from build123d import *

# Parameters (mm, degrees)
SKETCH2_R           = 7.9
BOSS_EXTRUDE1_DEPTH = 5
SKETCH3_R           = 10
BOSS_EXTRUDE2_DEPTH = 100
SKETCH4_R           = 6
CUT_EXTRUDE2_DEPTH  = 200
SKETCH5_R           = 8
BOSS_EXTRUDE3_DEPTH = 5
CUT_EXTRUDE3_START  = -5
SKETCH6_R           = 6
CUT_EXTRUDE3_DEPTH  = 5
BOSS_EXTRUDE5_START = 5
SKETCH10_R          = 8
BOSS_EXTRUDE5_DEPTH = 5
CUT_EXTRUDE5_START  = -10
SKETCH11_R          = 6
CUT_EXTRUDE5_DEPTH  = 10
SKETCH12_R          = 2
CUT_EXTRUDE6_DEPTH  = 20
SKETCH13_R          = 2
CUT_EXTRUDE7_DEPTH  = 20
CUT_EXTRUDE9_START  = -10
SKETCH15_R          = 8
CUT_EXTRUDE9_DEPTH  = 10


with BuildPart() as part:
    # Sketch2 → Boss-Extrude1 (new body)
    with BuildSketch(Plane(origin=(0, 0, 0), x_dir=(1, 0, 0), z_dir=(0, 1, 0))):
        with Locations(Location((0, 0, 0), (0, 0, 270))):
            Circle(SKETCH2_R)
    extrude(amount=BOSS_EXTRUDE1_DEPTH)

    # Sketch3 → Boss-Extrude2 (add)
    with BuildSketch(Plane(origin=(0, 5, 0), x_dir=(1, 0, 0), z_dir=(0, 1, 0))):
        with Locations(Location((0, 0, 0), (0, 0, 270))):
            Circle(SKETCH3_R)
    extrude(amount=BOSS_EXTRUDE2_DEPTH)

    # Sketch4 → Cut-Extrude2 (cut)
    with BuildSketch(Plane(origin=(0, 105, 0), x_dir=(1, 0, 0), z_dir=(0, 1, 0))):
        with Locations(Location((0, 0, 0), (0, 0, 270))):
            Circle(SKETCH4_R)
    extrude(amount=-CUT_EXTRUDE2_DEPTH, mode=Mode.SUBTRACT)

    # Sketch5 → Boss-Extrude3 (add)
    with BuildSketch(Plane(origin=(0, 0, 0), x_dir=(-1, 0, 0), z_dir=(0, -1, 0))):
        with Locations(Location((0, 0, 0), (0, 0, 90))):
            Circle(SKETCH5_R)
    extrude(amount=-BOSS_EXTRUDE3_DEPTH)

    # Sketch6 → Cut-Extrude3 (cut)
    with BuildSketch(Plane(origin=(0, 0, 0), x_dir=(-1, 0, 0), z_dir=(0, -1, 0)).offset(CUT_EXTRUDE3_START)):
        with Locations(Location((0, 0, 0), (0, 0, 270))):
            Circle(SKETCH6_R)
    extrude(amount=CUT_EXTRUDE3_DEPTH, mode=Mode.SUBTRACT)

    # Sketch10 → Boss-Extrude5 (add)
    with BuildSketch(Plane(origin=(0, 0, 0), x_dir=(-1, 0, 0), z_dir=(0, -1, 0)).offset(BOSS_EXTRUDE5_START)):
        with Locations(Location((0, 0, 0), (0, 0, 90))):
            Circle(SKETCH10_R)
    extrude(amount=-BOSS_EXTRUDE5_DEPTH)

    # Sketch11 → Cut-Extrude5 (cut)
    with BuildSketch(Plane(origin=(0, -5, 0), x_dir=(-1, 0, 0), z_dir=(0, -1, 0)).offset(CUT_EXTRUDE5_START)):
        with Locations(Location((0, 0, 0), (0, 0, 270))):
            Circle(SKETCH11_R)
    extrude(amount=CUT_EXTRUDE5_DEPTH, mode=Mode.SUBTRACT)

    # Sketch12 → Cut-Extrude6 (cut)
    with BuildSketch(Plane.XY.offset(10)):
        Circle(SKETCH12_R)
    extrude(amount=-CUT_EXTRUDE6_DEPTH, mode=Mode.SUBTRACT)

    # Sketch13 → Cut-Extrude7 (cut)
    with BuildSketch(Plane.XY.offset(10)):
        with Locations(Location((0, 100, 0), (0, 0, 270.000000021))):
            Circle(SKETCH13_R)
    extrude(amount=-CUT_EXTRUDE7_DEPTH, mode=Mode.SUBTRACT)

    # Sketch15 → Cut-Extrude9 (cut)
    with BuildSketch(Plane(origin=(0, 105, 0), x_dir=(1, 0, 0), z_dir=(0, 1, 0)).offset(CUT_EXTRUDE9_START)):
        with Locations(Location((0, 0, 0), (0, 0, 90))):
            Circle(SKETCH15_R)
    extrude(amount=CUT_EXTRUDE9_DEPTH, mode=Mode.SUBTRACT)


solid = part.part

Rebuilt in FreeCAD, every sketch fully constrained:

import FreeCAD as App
import Part
import Sketcher
from FreeCAD import Vector
Q = App.Units.Quantity

doc = App.newDocument("Part")
body = doc.addObject("PartDesign::Body", "Body")

sketch1 = body.newObject("Sketcher::SketchObject", "Sketch")
sketch1.AttachmentSupport = (doc.getObject("XZ_Plane"), [""])
sketch1.MapMode = "FlatFace"
sketch1.addGeometry(Part.Circle(Vector(0, 0, 0), Vector(0, 0, 1), 7.9), False)
sketch1.addConstraint(Sketcher.Constraint("Coincident", 0, 3, -1, 1))
sketch1.addConstraint(Sketcher.Constraint("Diameter", 0, Q("15.8 mm")))
pad1 = body.newObject("PartDesign::Pad", "Pad")
pad1.Profile = sketch1
pad1.Length = 5
pad1.Reversed = True

sketch2 = body.newObject("Sketcher::SketchObject", "Sketch001")
sketch2.AttachmentSupport = (doc.getObject("XZ_Plane"), [""])
sketch2.MapMode = "FlatFace"
sketch2.AttachmentOffset = App.Placement(Vector(0, 0, -5), App.Rotation())
sketch2.addGeometry(Part.Circle(Vector(0, 0, 0), Vector(0, 0, 1), 10), False)
sketch2.addConstraint(Sketcher.Constraint("Coincident", 0, 3, -1, 1))
sketch2.addConstraint(Sketcher.Constraint("Diameter", 0, Q("20 mm")))
pad2 = body.newObject("PartDesign::Pad", "Pad001")
pad2.Profile = sketch2
pad2.Length = 100
pad2.Reversed = True

sketch3 = body.newObject("Sketcher::SketchObject", "Sketch002")
sketch3.AttachmentSupport = (doc.getObject("XZ_Plane"), [""])
sketch3.MapMode = "FlatFace"
sketch3.AttachmentOffset = App.Placement(Vector(0, 0, -105), App.Rotation())
sketch3.addGeometry(Part.Circle(Vector(0, 0, 0), Vector(0, 0, 1), 6), False)
sketch3.addConstraint(Sketcher.Constraint("Coincident", 0, 3, -1, 1))
sketch3.addConstraint(Sketcher.Constraint("Diameter", 0, Q("12 mm")))
pocket1 = body.newObject("PartDesign::Pocket", "Pocket")
pocket1.Profile = sketch3
pocket1.Length = 200
pocket1.Reversed = True

sketch4 = body.newObject("Sketcher::SketchObject", "Sketch003")
sketch4.AttachmentSupport = (doc.getObject("XZ_Plane"), [""])
sketch4.MapMode = "FlatFace"
sketch4.addGeometry(Part.Circle(Vector(0, 0, 0), Vector(0, 0, 1), 8), False)
sketch4.addConstraint(Sketcher.Constraint("Coincident", 0, 3, -1, 1))
sketch4.addConstraint(Sketcher.Constraint("Diameter", 0, Q("16 mm")))
pad3 = body.newObject("PartDesign::Pad", "Pad002")
pad3.Profile = sketch4
pad3.Length = 5
pad3.Reversed = True

sketch5 = body.newObject("Sketcher::SketchObject", "Sketch004")
sketch5.AttachmentSupport = (doc.getObject("XZ_Plane"), [""])
sketch5.MapMode = "FlatFace"
sketch5.AttachmentOffset = App.Placement(Vector(0, 0, -5), App.Rotation())
sketch5.addGeometry(Part.Circle(Vector(0, 0, 0), Vector(0, 0, 1), 6), False)
sketch5.addConstraint(Sketcher.Constraint("Coincident", 0, 3, -1, 1))
sketch5.addConstraint(Sketcher.Constraint("Diameter", 0, Q("12 mm")))
pocket2 = body.newObject("PartDesign::Pocket", "Pocket001")
pocket2.Profile = sketch5
pocket2.Length = 5
pocket2.Reversed = True

sketch6 = body.newObject("Sketcher::SketchObject", "Sketch005")
sketch6.AttachmentSupport = (doc.getObject("XZ_Plane"), [""])
sketch6.MapMode = "FlatFace"
sketch6.AttachmentOffset = App.Placement(Vector(0, 0, 5), App.Rotation())
sketch6.addGeometry(Part.Circle(Vector(0, 0, 0), Vector(0, 0, 1), 8), False)
sketch6.addConstraint(Sketcher.Constraint("Coincident", 0, 3, -1, 1))
sketch6.addConstraint(Sketcher.Constraint("Diameter", 0, Q("16 mm")))
pad4 = body.newObject("PartDesign::Pad", "Pad003")
pad4.Profile = sketch6
pad4.Length = 5
pad4.Reversed = True

sketch7 = body.newObject("Sketcher::SketchObject", "Sketch006")
sketch7.AttachmentSupport = (doc.getObject("XZ_Plane"), [""])
sketch7.MapMode = "FlatFace"
sketch7.AttachmentOffset = App.Placement(Vector(0, 0, -5), App.Rotation())
sketch7.addGeometry(Part.Circle(Vector(0, 0, 0), Vector(0, 0, 1), 6), False)
sketch7.addConstraint(Sketcher.Constraint("Coincident", 0, 3, -1, 1))
sketch7.addConstraint(Sketcher.Constraint("Diameter", 0, Q("12 mm")))
pocket3 = body.newObject("PartDesign::Pocket", "Pocket002")
pocket3.Profile = sketch7
pocket3.Length = 10
pocket3.Reversed = True

sketch8 = body.newObject("Sketcher::SketchObject", "Sketch007")
sketch8.AttachmentSupport = (doc.getObject("XY_Plane"), [""])
sketch8.MapMode = "FlatFace"
sketch8.AttachmentOffset = App.Placement(Vector(0, 0, 10), App.Rotation())
sketch8.addGeometry(Part.Circle(Vector(0, 0, 0), Vector(0, 0, 1), 2), False)
sketch8.addConstraint(Sketcher.Constraint("Coincident", 0, 3, -1, 1))
sketch8.addConstraint(Sketcher.Constraint("Diameter", 0, Q("4 mm")))
pocket4 = body.newObject("PartDesign::Pocket", "Pocket003")
pocket4.Profile = sketch8
pocket4.Length = 20

sketch9 = body.newObject("Sketcher::SketchObject", "Sketch008")
sketch9.AttachmentSupport = (doc.getObject("XY_Plane"), [""])
sketch9.MapMode = "FlatFace"
sketch9.AttachmentOffset = App.Placement(Vector(0, 0, 10), App.Rotation())
sketch9.addGeometry(Part.Circle(Vector(0, 100, 0), Vector(0, 0, 1), 2), False)
sketch9.addConstraint(Sketcher.Constraint("PointOnObject", 0, 3, -2))
sketch9.addConstraint(Sketcher.Constraint("Diameter", 0, Q("4 mm")))
sketch9.addConstraint(Sketcher.Constraint("DistanceY", -1, 1, 0, 3, Q("100 mm")))
pocket5 = body.newObject("PartDesign::Pocket", "Pocket004")
pocket5.Profile = sketch9
pocket5.Length = 20

sketch10 = body.newObject("Sketcher::SketchObject", "Sketch009")
sketch10.AttachmentSupport = (doc.getObject("XZ_Plane"), [""])
sketch10.MapMode = "FlatFace"
sketch10.AttachmentOffset = App.Placement(Vector(0, 0, -95), App.Rotation())
sketch10.addGeometry(Part.Circle(Vector(0, 0, 0), Vector(0, 0, 1), 8), False)
sketch10.addConstraint(Sketcher.Constraint("Coincident", 0, 3, -1, 1))
sketch10.addConstraint(Sketcher.Constraint("Diameter", 0, Q("16 mm")))
pocket6 = body.newObject("PartDesign::Pocket", "Pocket005")
pocket6.Profile = sketch10
pocket6.Length = 10

doc.recompute()
